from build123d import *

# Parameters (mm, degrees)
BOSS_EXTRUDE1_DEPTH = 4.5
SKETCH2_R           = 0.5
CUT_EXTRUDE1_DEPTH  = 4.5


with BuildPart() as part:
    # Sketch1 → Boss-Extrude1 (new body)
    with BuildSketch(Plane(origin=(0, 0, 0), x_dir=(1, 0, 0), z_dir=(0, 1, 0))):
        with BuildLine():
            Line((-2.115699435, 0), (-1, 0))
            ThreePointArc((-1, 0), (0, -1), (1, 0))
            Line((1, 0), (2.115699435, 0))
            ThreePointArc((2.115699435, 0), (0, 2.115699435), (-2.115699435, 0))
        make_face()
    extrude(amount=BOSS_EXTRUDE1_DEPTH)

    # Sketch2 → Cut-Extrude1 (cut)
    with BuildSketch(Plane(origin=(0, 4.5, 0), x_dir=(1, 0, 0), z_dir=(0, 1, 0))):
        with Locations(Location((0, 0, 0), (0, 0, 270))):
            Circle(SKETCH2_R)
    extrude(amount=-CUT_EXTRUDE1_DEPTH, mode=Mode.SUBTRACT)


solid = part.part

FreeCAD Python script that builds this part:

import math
import FreeCAD as App
import Part
import Sketcher

V = App.Vector
Q = App.Units.Quantity

doc = App.newDocument("Part")
body = doc.addObject("PartDesign::Body", "Body")

sketch1 = body.newObject("Sketcher::SketchObject", "Sketch")
sketch1.AttachmentSupport = (doc.getObject("XZ_Plane"), [""])
sketch1.MapMode = "FlatFace"
sketch1.addGeometry(Part.LineSegment(V(-2.115699, 0, 0), V(-1, 0, 0)), False)
sketch1.addGeometry(Part.ArcOfCircle(Part.Circle(V(0, 0, 0), V(0, 0, 1), 1), math.radians(0), math.radians(180)), False)
sketch1.addGeometry(Part.LineSegment(V(1, 0, 0), V(2.115699, 0, 0)), False)
sketch1.addGeometry(Part.ArcOfCircle(Part.Circle(V(0, 0, 0), V(0, 0, 1), 2.115699), math.radians(180), math.radians(360)), False)
sketch1.addConstraint(Sketcher.Constraint("Coincident", 0, 2, 1, 2))
sketch1.addConstraint(Sketcher.Constraint("Coincident", 1, 1, 2, 1))
sketch1.addConstraint(Sketcher.Constraint("Coincident", 2, 2, 3, 2))
sketch1.addConstraint(Sketcher.Constraint("Coincident", 3, 1, 0, 1))
sketch1.addConstraint(Sketcher.Constraint("Horizontal", 0))
sketch1.addConstraint(Sketcher.Constraint("Horizontal", 2))
sketch1.addConstraint(Sketcher.Constraint("Coincident", 1, 3, -1, 1))
sketch1.addConstraint(Sketcher.Constraint("Coincident", 3, 3, -1, 1))
sketch1.addConstraint(Sketcher.Constraint("PointOnObject", 0, 2, -1))
sketch1.addConstraint(Sketcher.Constraint("PointOnObject", 1, 1, -1))
sketch1.addConstraint(Sketcher.Constraint("Radius", 1, Q("1 mm")))
sketch1.addConstraint(Sketcher.Constraint("Radius", 3, Q("2.115699 mm")))
pad1 = body.newObject("PartDesign::Pad", "Pad")
pad1.Profile = sketch1
pad1.Length = 4.5
pad1.Reversed = True

sketch2 = body.newObject("Sketcher::SketchObject", "Sketch001")
sketch2.AttachmentSupport = (doc.getObject("XZ_Plane"), [""])
sketch2.MapMode = "FlatFace"
sketch2.AttachmentOffset = App.Placement(V(0, 0, -4.5), App.Rotation())
sketch2.addGeometry(Part.Circle(V(0, 0, 0), V(0, 0, 1), 0.5), False)
sketch2.addConstraint(Sketcher.Constraint("Coincident", 0, 3, -1, 1))
sketch2.addConstraint(Sketcher.Constraint("Diameter", 0, Q("1 mm")))
pocket1 = body.newObject("PartDesign::Pocket", "Pocket")
pocket1.Profile = sketch2
pocket1.Length = 4.5
pocket1.Reversed = True

doc.recompute()
